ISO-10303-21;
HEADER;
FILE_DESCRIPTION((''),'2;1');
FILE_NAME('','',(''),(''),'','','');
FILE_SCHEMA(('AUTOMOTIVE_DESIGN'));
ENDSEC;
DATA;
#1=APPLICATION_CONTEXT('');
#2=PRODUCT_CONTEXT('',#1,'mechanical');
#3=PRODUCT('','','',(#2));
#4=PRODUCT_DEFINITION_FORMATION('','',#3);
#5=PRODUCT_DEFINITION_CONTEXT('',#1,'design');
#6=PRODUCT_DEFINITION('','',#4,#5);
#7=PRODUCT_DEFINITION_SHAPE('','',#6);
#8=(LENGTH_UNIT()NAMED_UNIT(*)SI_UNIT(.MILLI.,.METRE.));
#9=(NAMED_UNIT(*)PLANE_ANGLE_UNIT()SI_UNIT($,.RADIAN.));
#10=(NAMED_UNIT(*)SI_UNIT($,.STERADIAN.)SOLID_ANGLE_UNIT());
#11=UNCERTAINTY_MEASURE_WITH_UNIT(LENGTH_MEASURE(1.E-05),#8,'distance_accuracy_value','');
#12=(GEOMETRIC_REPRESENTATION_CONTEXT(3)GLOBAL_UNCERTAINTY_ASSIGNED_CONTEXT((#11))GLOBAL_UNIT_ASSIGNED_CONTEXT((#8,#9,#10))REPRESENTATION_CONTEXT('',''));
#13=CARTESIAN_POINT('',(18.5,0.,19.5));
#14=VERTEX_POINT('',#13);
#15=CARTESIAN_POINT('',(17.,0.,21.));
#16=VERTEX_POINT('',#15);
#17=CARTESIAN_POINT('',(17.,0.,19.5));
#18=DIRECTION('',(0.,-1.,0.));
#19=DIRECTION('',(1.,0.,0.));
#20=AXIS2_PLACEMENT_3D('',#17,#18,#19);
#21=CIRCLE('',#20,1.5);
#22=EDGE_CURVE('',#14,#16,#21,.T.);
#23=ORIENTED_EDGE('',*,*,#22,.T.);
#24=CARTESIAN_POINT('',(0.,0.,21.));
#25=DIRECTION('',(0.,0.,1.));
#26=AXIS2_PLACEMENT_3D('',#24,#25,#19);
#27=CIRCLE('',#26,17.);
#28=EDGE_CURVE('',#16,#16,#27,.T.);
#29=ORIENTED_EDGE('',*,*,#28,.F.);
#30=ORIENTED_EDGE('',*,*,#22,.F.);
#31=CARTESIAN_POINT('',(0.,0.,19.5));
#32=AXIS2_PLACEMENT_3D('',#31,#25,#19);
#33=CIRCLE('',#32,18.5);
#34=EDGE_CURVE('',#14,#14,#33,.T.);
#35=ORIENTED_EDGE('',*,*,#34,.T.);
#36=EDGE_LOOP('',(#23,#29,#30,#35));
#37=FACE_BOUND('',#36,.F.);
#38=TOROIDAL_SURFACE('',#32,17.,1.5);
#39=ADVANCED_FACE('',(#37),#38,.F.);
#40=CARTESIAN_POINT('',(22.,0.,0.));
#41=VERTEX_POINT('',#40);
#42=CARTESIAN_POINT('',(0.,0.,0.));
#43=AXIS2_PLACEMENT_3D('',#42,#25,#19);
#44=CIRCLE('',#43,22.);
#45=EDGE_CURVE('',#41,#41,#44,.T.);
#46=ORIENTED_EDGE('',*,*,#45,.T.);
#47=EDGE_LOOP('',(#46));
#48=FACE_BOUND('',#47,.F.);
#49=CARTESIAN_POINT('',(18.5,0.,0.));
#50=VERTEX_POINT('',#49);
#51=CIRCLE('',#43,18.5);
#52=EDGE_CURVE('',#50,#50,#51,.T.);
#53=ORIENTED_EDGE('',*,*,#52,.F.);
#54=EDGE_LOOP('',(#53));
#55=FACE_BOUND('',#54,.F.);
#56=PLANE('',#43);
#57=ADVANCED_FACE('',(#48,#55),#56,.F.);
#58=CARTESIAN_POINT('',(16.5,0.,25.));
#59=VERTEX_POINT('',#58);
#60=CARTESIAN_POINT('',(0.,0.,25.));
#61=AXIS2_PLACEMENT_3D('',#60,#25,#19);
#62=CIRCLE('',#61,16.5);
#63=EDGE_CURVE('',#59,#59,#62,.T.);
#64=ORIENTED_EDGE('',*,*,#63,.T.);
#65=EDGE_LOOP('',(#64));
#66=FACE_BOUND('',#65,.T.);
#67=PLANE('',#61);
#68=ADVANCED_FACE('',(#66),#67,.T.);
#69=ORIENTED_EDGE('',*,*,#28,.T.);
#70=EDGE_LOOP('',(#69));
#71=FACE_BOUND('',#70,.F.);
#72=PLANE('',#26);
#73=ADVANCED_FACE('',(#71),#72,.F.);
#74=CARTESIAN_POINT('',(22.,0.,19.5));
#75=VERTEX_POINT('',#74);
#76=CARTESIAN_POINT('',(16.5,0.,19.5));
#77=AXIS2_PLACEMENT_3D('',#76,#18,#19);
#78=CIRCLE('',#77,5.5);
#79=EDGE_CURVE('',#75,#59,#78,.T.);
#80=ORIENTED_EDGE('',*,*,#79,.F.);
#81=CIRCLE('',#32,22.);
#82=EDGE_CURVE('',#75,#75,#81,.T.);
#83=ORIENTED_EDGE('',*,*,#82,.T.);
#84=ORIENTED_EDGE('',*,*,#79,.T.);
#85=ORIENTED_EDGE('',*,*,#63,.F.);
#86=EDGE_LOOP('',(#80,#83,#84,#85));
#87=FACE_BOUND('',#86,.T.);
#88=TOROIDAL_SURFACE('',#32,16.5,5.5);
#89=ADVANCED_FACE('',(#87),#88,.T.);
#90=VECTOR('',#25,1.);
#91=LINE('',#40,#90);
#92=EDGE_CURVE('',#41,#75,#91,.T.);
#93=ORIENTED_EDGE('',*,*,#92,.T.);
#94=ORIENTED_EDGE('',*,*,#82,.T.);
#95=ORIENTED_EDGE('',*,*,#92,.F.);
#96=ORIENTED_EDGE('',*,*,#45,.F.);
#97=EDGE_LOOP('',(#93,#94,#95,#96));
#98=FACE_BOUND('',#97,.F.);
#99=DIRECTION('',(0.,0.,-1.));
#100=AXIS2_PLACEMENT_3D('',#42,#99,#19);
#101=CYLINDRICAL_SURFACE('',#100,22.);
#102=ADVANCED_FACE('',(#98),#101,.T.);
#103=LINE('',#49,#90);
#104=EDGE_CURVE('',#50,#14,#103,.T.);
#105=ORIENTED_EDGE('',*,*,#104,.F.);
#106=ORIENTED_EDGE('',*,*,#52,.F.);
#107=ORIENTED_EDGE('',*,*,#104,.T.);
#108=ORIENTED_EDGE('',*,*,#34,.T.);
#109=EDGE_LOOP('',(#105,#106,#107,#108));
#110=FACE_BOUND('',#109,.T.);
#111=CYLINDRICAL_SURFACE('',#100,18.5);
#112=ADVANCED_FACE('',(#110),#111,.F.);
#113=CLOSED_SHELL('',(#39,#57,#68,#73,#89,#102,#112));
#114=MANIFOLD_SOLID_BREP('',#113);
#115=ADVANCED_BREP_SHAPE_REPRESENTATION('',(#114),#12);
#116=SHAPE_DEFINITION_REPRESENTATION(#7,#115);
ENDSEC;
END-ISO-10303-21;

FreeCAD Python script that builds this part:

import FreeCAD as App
import Part
import Sketcher

V = App.Vector
Q = App.Units.Quantity


def edges_at(feature, points):
    """Names of the edges that pass closest to the given points."""
    edges = feature.Shape.Edges
    near = lambda p: min(range(len(edges)), key=lambda i: edges[i].distToShape(Part.Vertex(*p))[0])
    return sorted({f"Edge{near(p) + 1}" for p in points})

doc = App.newDocument("Part")
body = doc.addObject("PartDesign::Body", "Body")

sketch1 = doc.addObject("Sketcher::SketchObject", "Sketch")
body.addObject(sketch1)
sketch1.AttachmentSupport = (doc.XY_Plane, [""])
sketch1.MapMode = "FlatFace"
sketch1.addGeometry(Part.Circle(V(0, 0, 0), V(0, 0, 1), 22), False)
sketch1.addConstraint([
    Sketcher.Constraint("Coincident", 0, 3, -1, 1),
    Sketcher.Constraint("Diameter", 0, Q("44 mm")),
])
pad1 = doc.addObject("PartDesign::Pad", "Pad")
body.addObject(pad1)
pad1.Profile = sketch1
pad1.Length = 25
doc.recompute()

fillet = doc.addObject("PartDesign::Fillet", "Fillet")
body.addObject(fillet)
fillet.Base = (pad1, edges_at(pad1, [(-22, 0, 25)]))
fillet.Radius = 5.5

sketch2 = doc.addObject("Sketcher::SketchObject", "Sketch001")
body.addObject(sketch2)
sketch2.AttachmentSupport = (doc.XY_Plane, [""])
sketch2.MapMode = "FlatFace"
sketch2.addGeometry(Part.Circle(V(0, 0, 0), V(0, 0, 1), 18.5), False)
sketch2.addConstraint([
    Sketcher.Constraint("Coincident", 0, 3, -1, 1),
    Sketcher.Constraint("Diameter", 0, Q("37 mm")),
])
pocket1 = doc.addObject("PartDesign::Pocket", "Pocket")
body.addObject(pocket1)
pocket1.Profile = sketch2
pocket1.Length = 21
pocket1.Reversed = True
doc.recompute()

fillet2 = doc.addObject("PartDesign::Fillet", "Fillet001")
body.addObject(fillet2)
fillet2.Base = (pocket1, edges_at(pocket1, [(-18.5, 0, 21)]))
fillet2.Radius = 1.5

doc.recompute()
